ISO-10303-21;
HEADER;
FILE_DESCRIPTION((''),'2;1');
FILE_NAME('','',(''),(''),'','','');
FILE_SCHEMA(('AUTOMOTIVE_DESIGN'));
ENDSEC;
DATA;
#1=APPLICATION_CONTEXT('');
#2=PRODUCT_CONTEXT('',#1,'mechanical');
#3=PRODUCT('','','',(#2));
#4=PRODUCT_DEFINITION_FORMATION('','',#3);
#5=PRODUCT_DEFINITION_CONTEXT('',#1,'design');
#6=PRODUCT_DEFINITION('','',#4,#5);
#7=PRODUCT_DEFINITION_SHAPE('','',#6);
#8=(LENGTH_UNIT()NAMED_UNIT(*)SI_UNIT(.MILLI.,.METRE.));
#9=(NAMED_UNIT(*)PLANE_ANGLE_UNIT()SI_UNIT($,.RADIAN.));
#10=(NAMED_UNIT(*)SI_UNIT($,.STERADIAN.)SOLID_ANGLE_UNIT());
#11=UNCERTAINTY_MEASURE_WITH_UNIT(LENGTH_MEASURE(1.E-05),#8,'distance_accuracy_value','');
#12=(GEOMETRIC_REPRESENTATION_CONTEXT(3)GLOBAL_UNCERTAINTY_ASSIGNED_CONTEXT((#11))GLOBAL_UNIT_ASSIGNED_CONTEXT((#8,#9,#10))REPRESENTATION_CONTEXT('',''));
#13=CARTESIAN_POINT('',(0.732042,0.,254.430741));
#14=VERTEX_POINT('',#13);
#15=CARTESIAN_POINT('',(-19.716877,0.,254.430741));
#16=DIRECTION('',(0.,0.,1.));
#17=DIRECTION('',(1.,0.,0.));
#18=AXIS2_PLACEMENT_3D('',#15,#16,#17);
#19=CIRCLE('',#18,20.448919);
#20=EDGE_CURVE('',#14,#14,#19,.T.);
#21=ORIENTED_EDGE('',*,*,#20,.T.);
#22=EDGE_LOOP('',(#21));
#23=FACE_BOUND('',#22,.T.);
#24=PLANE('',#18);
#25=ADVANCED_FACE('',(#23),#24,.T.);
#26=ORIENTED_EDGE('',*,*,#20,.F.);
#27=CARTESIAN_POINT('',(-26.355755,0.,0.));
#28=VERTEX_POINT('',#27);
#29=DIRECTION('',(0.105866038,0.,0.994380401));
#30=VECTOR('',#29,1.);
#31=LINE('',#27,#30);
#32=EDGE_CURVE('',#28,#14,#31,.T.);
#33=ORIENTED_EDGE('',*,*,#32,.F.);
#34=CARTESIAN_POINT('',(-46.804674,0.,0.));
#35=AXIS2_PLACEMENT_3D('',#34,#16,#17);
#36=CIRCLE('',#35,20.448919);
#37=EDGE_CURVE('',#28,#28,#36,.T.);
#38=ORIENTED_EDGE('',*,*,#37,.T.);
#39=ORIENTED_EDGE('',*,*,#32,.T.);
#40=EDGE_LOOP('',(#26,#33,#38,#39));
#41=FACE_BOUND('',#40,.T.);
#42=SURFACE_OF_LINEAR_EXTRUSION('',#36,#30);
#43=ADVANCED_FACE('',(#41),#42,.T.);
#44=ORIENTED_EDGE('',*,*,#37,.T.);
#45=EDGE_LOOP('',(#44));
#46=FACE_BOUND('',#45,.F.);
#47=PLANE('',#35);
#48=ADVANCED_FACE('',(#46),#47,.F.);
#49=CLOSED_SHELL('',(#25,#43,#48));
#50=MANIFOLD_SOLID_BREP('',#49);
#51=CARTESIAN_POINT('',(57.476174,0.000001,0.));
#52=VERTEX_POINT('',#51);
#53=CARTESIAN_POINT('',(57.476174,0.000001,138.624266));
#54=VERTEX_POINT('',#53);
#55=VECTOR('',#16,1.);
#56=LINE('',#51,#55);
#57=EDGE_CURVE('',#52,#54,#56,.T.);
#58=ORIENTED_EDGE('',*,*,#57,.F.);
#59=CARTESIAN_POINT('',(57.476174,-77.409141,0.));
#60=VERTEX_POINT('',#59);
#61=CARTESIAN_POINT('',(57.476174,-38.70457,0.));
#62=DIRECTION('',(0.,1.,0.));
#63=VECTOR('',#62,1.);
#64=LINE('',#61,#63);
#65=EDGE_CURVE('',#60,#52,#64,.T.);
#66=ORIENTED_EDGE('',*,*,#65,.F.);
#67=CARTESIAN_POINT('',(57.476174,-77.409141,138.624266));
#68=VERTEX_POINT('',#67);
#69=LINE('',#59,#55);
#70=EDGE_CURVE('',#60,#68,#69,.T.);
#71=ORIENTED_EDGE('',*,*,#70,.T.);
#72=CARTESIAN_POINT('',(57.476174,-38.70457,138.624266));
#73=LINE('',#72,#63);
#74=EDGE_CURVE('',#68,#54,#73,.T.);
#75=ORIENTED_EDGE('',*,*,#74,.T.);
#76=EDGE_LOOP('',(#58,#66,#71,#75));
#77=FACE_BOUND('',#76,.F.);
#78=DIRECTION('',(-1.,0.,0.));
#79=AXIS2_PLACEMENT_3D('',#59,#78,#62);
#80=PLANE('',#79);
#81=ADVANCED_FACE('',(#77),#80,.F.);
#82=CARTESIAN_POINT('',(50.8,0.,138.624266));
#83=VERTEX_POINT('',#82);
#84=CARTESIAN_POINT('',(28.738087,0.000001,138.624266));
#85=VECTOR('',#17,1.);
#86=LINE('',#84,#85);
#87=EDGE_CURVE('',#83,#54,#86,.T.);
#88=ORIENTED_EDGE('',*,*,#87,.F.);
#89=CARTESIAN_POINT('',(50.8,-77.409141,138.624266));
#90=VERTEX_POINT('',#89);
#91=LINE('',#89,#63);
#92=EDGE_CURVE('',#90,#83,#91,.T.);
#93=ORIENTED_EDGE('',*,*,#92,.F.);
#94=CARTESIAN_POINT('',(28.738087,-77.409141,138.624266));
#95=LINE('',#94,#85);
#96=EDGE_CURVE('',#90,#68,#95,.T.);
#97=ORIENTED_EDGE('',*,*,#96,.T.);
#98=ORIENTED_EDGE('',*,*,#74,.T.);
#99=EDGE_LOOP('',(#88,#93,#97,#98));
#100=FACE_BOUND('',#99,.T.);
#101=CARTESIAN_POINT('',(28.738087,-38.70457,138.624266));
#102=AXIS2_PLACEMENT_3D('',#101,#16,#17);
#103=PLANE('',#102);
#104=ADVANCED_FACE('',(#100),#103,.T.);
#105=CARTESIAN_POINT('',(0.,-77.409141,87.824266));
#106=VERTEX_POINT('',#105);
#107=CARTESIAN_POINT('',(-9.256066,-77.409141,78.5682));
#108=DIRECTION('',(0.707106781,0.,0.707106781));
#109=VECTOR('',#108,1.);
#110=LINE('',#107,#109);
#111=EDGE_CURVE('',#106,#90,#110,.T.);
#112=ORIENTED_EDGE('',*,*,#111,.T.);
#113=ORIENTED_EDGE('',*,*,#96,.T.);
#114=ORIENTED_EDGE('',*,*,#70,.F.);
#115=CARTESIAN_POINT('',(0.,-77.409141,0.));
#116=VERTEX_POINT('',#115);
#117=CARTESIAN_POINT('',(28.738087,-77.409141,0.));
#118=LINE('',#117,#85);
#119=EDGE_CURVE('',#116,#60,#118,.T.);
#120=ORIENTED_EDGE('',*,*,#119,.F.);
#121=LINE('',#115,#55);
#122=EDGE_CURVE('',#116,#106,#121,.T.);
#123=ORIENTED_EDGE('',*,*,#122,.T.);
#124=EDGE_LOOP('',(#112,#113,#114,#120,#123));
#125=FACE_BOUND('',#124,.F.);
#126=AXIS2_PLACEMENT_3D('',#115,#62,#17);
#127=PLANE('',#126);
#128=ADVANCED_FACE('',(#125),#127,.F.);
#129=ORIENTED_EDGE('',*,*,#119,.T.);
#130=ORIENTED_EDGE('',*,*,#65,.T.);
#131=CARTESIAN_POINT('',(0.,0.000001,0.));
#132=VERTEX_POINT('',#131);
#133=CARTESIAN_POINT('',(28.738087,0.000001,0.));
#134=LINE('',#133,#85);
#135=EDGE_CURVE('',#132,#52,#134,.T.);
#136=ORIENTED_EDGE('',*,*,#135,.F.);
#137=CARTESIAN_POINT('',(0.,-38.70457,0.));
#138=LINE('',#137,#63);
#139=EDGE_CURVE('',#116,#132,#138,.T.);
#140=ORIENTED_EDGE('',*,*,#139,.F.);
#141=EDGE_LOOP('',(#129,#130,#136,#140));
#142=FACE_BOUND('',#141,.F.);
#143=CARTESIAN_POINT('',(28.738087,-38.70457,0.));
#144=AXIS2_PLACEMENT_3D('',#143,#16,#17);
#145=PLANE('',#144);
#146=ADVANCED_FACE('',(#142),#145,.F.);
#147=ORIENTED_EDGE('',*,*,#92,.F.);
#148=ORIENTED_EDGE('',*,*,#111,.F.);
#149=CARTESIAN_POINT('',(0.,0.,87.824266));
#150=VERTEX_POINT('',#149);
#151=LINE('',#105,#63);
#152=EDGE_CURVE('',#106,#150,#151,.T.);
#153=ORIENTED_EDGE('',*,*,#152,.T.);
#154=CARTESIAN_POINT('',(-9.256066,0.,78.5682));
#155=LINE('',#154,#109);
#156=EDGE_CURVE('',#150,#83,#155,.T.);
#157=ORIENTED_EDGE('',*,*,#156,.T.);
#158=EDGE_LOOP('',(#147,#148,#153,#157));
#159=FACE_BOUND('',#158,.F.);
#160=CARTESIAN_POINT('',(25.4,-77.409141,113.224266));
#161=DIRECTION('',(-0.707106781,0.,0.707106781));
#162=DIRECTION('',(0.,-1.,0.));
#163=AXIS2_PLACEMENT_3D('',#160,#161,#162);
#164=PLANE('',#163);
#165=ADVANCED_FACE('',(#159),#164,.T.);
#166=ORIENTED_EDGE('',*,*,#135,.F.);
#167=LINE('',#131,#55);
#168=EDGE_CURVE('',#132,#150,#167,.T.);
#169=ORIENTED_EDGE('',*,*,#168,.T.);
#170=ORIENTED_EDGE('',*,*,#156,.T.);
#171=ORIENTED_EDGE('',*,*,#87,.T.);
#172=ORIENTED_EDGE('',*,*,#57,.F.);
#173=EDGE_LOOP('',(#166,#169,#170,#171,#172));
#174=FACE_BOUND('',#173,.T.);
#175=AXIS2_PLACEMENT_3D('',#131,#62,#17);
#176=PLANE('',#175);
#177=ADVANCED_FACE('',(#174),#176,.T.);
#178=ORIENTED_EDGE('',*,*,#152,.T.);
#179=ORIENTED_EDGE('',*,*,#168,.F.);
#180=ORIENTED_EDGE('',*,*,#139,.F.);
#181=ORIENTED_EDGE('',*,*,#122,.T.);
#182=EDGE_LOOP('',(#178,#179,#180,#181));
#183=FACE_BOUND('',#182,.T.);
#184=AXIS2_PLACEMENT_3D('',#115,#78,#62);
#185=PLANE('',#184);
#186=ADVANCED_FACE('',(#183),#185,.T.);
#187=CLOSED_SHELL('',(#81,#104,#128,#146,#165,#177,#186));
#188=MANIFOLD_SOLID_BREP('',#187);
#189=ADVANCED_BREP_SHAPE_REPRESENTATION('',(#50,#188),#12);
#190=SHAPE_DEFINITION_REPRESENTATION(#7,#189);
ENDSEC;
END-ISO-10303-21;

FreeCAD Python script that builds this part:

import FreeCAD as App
import Part
import Sketcher
Q = App.Units.Quantity


def edges_at(feature, points):
    """Names of the edges that pass closest to the given points."""
    edges = feature.Shape.Edges
    near = lambda p: min(range(len(edges)), key=lambda i: edges[i].distToShape(Part.Vertex(*p))[0])
    return sorted({f"Edge{near(p) + 1}" for p in points})


def add_polygon(sketch, points):
    """Adds a closed chain of lines whose ends are joined by coincident constraints."""
    first, n = sketch.GeometryCount, len(points)
    for a, b in zip(points, points[1:] + points[:1]):
        sketch.addGeometry(Part.LineSegment(App.Vector(*a, 0), App.Vector(*b, 0)), False)
    for i in range(n):
        sketch.addConstraint(Sketcher.Constraint("Coincident", first + i, 2, first + (i + 1) % n, 1))

doc = App.newDocument("Part")
body = doc.addObject("PartDesign::Body", "Body")

sketch1 = body.newObject("Sketcher::SketchObject", "Sketch")
sketch1.AttachmentSupport = (doc.getObject("XY_Plane"), [""])
sketch1.MapMode = "FlatFace"
add_polygon(sketch1, [(0, 0), (0, -77.409141), (57.476174, -77.409141), (57.476174, 0)])
sketch1.addConstraint(Sketcher.Constraint("Vertical", 0))
sketch1.addConstraint(Sketcher.Constraint("Horizontal", 1))
sketch1.addConstraint(Sketcher.Constraint("Vertical", 2))
sketch1.addConstraint(Sketcher.Constraint("Horizontal", 3))
sketch1.addConstraint(Sketcher.Constraint("Coincident", 3, 2, -1, 1))
sketch1.addConstraint(Sketcher.Constraint("DistanceY", 0, 2, 0, 1, Q("77.409141 mm")))
sketch1.addConstraint(Sketcher.Constraint("DistanceX", 1, 1, 1, 2, Q("57.476174 mm")))
pad1 = body.newObject("PartDesign::Pad", "Pad")
pad1.Profile = sketch1
pad1.Length = 138.624266
doc.recompute()

chamfer = body.newObject("PartDesign::Chamfer", "Chamfer")
chamfer.Base = (pad1, edges_at(pad1, [(0, -38.705, 138.624)]))
chamfer.Size = Q("2 in")
body2 = doc.addObject("PartDesign::Body", "Body001")

sketch2 = body2.newObject("Sketcher::SketchObject", "Sketch001")
sketch2.AttachmentSupport = (doc.getObject("XY_Plane001"), [""])
sketch2.MapMode = "FlatFace"
sketch2.addGeometry(Part.Circle(App.Vector(-46.804674, 0, 0), App.Vector(0, 0, 1), 20.448919), False)
sketch2.addConstraint(Sketcher.Constraint("PointOnObject", 0, 3, -1))
sketch2.addConstraint(Sketcher.Constraint("Diameter", 0, Q("40.897838 mm")))
sketch2.addConstraint(Sketcher.Constraint("DistanceX", 0, 3, -1, 1, Q("46.804674 mm")))

sketch3 = body2.newObject("Sketcher::SketchObject", "Sketch002")
sketch3.Placement = App.Placement(App.Vector(-48.669551, 0, 5.181571), App.Rotation(App.Vector(0.105866038, 0, 0.994380401), App.Vector(0, 1, 0), App.Vector(-0.994380401, 0, 0.105866038), "ZXY"))
sketch3.addGeometry(Part.LineSegment(App.Vector(-5.210854, 0, 0), App.Vector(250.657766, 0, 0)), False)
sketch3.addConstraint(Sketcher.Constraint("Horizontal", 0))
sketch3.addConstraint(Sketcher.Constraint("PointOnObject", 0, 1, -1))
sketch3.addConstraint(Sketcher.Constraint("DistanceX", 0, 1, 0, 2, Q("255.86862 mm")))
sketch3.addConstraint(Sketcher.Constraint("DistanceX", 0, 1, -1, 1, Q("5.210854 mm")))
doc.recompute()

additivepipe = body2.newObject("PartDesign::AdditivePipe", "AdditivePipe")
additivepipe.Profile = sketch2
additivepipe.Spine = (sketch3, ["Edge1"])

doc.recompute()
